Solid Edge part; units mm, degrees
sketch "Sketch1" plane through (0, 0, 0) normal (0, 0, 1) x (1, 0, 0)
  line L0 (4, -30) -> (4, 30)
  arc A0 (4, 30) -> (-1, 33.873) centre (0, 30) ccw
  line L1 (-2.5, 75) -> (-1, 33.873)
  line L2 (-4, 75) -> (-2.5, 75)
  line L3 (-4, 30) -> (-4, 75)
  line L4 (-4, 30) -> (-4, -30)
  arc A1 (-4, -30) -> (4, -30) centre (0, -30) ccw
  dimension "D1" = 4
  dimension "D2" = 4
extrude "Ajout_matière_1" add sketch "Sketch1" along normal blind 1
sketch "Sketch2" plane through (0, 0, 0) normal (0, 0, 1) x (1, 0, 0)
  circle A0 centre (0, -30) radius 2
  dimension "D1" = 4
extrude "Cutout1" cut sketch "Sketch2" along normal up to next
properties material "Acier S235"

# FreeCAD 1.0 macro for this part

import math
import FreeCAD as App
import Part
import Sketcher

V = App.Vector
Q = App.Units.Quantity

doc = App.newDocument("Part")
body = doc.addObject("PartDesign::Body", "Body")

# Sketch on XY plane
sketch1 = body.newObject("Sketcher::SketchObject", "Sketch")
sketch1.AttachmentSupport = (doc.getObject("XY_Plane"), [""])
sketch1.MapMode = "FlatFace"
sketch1.addGeometry(Part.ArcOfCircle(Part.Circle(V(0, -30, 0), V(0, 0, 1), 4), math.radians(180), math.radians(360)), False)
sketch1.addGeometry(Part.LineSegment(V(4, -30, 0), V(4, 30, 0)), False)
sketch1.addGeometry(Part.ArcOfCircle(Part.Circle(V(0, 30, 0), V(0, 0, 1), 4), math.radians(0), math.radians(104)), False)
sketch1.addGeometry(Part.LineSegment(V(-1, 33.9, 0), V(-2.5, 75, 0)), False)
sketch1.addGeometry(Part.LineSegment(V(-2.5, 75, 0), V(-4, 75, 0)), False)
sketch1.addGeometry(Part.LineSegment(V(-4, 75, 0), V(-4, -30, 0)), False)
sketch1.addConstraint(Sketcher.Constraint("Tangent", 0, 2, 1, 1))
sketch1.addConstraint(Sketcher.Constraint("Tangent", 1, 2, 2, 1))
sketch1.addConstraint(Sketcher.Constraint("Coincident", 2, 2, 3, 1))
sketch1.addConstraint(Sketcher.Constraint("Coincident", 3, 2, 4, 1))
sketch1.addConstraint(Sketcher.Constraint("Coincident", 4, 2, 5, 1))
sketch1.addConstraint(Sketcher.Constraint("Tangent", 5, 2, 0, 1))
sketch1.addConstraint(Sketcher.Constraint("Vertical", 1))
sketch1.addConstraint(Sketcher.Constraint("Horizontal", 4))
sketch1.addConstraint(Sketcher.Constraint("Vertical", 5))
sketch1.addConstraint(Sketcher.Constraint("Equal", 0, 2))
sketch1.addConstraint(Sketcher.Constraint("Symmetric", 0, 3, 2, 3, -1, 1))
sketch1.addConstraint(Sketcher.Constraint("Radius", 0, Q("4 mm")))
sketch1.addConstraint(Sketcher.Constraint("DistanceY", 1, 1, 1, 2, Q("60 mm")))
sketch1.addConstraint(Sketcher.Constraint("DistanceY", 5, 2, 5, 1, Q("105 mm")))
sketch1.addConstraint(Sketcher.Constraint("DistanceX", 4, 2, 4, 1, Q("1.5 mm")))
sketch1.addConstraint(Sketcher.Constraint("DistanceX", 2, 2, -1, 1, Q("1 mm")))
pad1 = body.newObject("PartDesign::Pad", "Pad")
pad1.Profile = sketch1
pad1.Length = 1

# Sketch on XY plane
sketch2 = body.newObject("Sketcher::SketchObject", "Sketch001")
sketch2.AttachmentSupport = (doc.getObject("XY_Plane"), [""])
sketch2.MapMode = "FlatFace"
sketch2.addGeometry(Part.Circle(V(0, -30, 0), V(0, 0, 1), 2), False)
sketch2.addConstraint(Sketcher.Constraint("PointOnObject", 0, 3, -2))
sketch2.addConstraint(Sketcher.Constraint("Diameter", 0, Q("4 mm")))
sketch2.addConstraint(Sketcher.Constraint("DistanceY", 0, 3, -1, 1, Q("30 mm")))
pocket1 = body.newObject("PartDesign::Pocket", "Pocket")
pocket1.Profile = sketch2
pocket1.Type = "UpToFirst"
pocket1.Reversed = True

doc.recompute()
